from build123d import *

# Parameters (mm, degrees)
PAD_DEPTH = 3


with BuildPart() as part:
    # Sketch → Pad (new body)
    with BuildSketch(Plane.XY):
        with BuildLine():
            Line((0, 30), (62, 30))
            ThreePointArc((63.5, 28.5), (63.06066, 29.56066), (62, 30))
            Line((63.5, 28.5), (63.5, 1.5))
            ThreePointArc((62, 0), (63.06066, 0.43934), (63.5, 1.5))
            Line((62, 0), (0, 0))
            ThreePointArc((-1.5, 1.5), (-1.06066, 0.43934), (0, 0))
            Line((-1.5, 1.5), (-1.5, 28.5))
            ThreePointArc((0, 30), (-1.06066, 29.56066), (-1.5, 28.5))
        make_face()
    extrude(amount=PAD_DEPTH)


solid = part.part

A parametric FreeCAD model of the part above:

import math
import FreeCAD as App
import Part
import Sketcher

doc = App.newDocument("Part")
body = doc.addObject("PartDesign::Body", "Body")

# Sketch on XY plane
sketch1 = body.newObject("Sketcher::SketchObject", "Sketch")
sketch1.AttachmentSupport = (doc.getObject("XY_Plane"), [""])
sketch1.MapMode = "FlatFace"
sketch1.addGeometry([
    Part.LineSegment(App.Vector(62, 30, 0), App.Vector(0, 30, 0)),  # 0
    Part.ArcOfCircle(Part.Circle(App.Vector(0.000001, 28.499999, 0), App.Vector(0, 0, 1), 1.500001), math.radians(90.000022), math.radians(179.999978)),  # 1
    Part.LineSegment(App.Vector(-1.5, 28.5, 0), App.Vector(-1.5, 1.5, 0)),  # 2
    Part.ArcOfCircle(Part.Circle(App.Vector(0.000001, 1.500001, 0), App.Vector(0, 0, 1), 1.500001), math.radians(-179.999978), math.radians(-90.000022)),  # 3
    Part.LineSegment(App.Vector(0, 0, 0), App.Vector(62, 0, 0)),  # 4
    Part.ArcOfCircle(Part.Circle(App.Vector(61.999999, 1.500001, 0), App.Vector(0, 0, 1), 1.500001), math.radians(-89.999978), math.radians(-0.000022)),  # 5
    Part.LineSegment(App.Vector(63.5, 1.5, 0), App.Vector(63.5, 28.5, 0)),  # 6
    Part.ArcOfCircle(Part.Circle(App.Vector(61.999999, 28.499999, 0), App.Vector(0, 0, 1), 1.500001), math.radians(0.000022), math.radians(89.999978)),  # 7
], False)
sketch1.addConstraint([
    Sketcher.Constraint("Tangent", 0, 2, 1, 1),
    Sketcher.Constraint("Tangent", 1, 2, 2, 1),
    Sketcher.Constraint("Tangent", 2, 2, 3, 1),
    Sketcher.Constraint("Tangent", 3, 2, 4, 1),
    Sketcher.Constraint("Tangent", 4, 2, 5, 1),
    Sketcher.Constraint("Tangent", 5, 2, 6, 1),
    Sketcher.Constraint("Tangent", 6, 2, 7, 1),
    Sketcher.Constraint("Tangent", 7, 2, 0, 1),
    Sketcher.Constraint("Horizontal", 0),
    Sketcher.Constraint("Vertical", 2),
    Sketcher.Constraint("Horizontal", 4),
    Sketcher.Constraint("Vertical", 6),
    Sketcher.Constraint("Coincident", 3, 2, -1, 1),
    Sketcher.Constraint("Equal", 1, 3),
    Sketcher.Constraint("Equal", 3, 5),
    Sketcher.Constraint("Equal", 5, 7),
    Sketcher.Constraint("Radius", 1, 1.500001),
    Sketcher.Constraint("DistanceX", 0, 2, 0, 1, 62.0),
    Sketcher.Constraint("DistanceY", 2, 2, 2, 1, 27.0),
])
pad1 = body.newObject("PartDesign::Pad", "Pad")
pad1.Profile = sketch1
pad1.Length = 3

doc.recompute()
